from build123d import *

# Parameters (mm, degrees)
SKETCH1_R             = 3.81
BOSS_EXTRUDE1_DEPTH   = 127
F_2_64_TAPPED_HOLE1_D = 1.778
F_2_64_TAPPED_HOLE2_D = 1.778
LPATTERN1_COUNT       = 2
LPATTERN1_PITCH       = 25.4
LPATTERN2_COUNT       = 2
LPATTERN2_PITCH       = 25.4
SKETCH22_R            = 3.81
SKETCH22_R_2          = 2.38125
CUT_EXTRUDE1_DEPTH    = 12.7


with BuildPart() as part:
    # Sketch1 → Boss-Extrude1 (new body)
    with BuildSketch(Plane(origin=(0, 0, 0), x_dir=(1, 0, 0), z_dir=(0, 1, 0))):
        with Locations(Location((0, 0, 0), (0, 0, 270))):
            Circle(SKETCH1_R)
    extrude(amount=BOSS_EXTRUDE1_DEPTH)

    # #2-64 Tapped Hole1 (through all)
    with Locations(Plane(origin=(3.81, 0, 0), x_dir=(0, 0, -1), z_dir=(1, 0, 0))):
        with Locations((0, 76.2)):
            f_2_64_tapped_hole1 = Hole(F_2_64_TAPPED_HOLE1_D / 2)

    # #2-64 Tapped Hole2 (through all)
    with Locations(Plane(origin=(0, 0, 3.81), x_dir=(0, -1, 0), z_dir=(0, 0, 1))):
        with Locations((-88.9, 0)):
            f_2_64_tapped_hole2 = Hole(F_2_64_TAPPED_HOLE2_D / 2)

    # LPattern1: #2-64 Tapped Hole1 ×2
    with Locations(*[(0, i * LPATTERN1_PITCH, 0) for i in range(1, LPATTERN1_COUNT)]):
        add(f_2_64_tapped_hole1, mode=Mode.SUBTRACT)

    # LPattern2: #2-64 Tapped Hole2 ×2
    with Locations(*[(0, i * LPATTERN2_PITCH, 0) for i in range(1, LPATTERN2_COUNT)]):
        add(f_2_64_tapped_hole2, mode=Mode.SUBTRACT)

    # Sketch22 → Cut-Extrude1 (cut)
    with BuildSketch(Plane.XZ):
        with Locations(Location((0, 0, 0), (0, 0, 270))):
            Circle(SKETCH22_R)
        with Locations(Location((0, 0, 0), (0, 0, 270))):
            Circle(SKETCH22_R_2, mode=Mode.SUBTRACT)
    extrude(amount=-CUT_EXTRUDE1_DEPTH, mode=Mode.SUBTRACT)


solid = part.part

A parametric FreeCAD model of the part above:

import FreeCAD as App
import Part
import Sketcher
from FreeCAD import Vector
Q = App.Units.Quantity

doc = App.newDocument("Part")
body = doc.addObject("PartDesign::Body", "Body")

# Sketch on XZ plane
sketch1 = body.newObject("Sketcher::SketchObject", "Sketch")
sketch1.AttachmentSupport = (doc.getObject("XZ_Plane"), [""])
sketch1.MapMode = "FlatFace"
sketch1.addGeometry(Part.Circle(Vector(0, 0, 0), Vector(0, 0, 1), 3.81), False)
sketch1.addConstraint([
    Sketcher.Constraint("Coincident", 0, 3, -1, 1),
    Sketcher.Constraint("Diameter", 0, Q("0.3 in")),
])
pad1 = body.newObject("PartDesign::Pad", "Pad")
pad1.Profile = sketch1
pad1.Length = Q("5 in")
pad1.Reversed = True

# Sketch on YZ plane
sketch2 = body.newObject("Sketcher::SketchObject", "Sketch001")
sketch2.AttachmentSupport = (doc.getObject("YZ_Plane"), [""])
sketch2.MapMode = "FlatFace"
sketch2.AttachmentOffset = App.Placement(Vector(0, 0, 0.15 * 25.4), App.Rotation())
sketch2.addGeometry(Part.Circle(Vector(76.2, 0, 0), Vector(0, 0, 1), 0.889), False)
sketch2.addConstraint([
    Sketcher.Constraint("PointOnObject", 0, 3, -1),
    Sketcher.Constraint("Diameter", 0, Q("0.07 in")),
    Sketcher.Constraint("DistanceX", -1, 1, 0, 3, Q("3 in")),
])
doc.recompute()
hole = body.newObject("PartDesign::Hole", "Hole")
hole.Profile = sketch2
hole.ThreadType = "None"
hole.Diameter = Q("0.07 in")
hole.DepthType = "ThroughAll"

# Sketch on XY plane
sketch3 = body.newObject("Sketcher::SketchObject", "Sketch002")
sketch3.AttachmentSupport = (doc.getObject("XY_Plane"), [""])
sketch3.MapMode = "FlatFace"
sketch3.AttachmentOffset = App.Placement(Vector(0, 0, 0.15 * 25.4), App.Rotation())
sketch3.addGeometry(Part.Circle(Vector(0, 88.9, 0), Vector(0, 0, 1), 0.889), False)
sketch3.addConstraint([
    Sketcher.Constraint("PointOnObject", 0, 3, -2),
    Sketcher.Constraint("Diameter", 0, Q("0.07 in")),
    Sketcher.Constraint("DistanceY", -1, 1, 0, 3, Q("3.5 in")),
])
doc.recompute()
hole2 = body.newObject("PartDesign::Hole", "Hole001")
hole2.Profile = sketch3
hole2.ThreadType = "None"
hole2.Diameter = Q("0.07 in")
hole2.DepthType = "ThroughAll"
doc.recompute()

linearpattern = body.newObject("PartDesign::LinearPattern", "LinearPattern")
linearpattern.Originals = [hole]
linearpattern.Direction = (doc.getObject("Y_Axis"), [""])
linearpattern.Mode = "offset"
linearpattern.Offset = Q("1 in")
linearpattern.Occurrences = 2
body.Tip = linearpattern
doc.recompute()

linearpattern2 = body.newObject("PartDesign::LinearPattern", "LinearPattern001")
linearpattern2.Originals = [hole2]
linearpattern2.Direction = (doc.getObject("Y_Axis"), [""])
linearpattern2.Mode = "offset"
linearpattern2.Offset = Q("1 in")
linearpattern2.Occurrences = 2
body.Tip = linearpattern2

# Sketch on XZ plane
sketch4 = body.newObject("Sketcher::SketchObject", "Sketch003")
sketch4.AttachmentSupport = (doc.getObject("XZ_Plane"), [""])
sketch4.MapMode = "FlatFace"
sketch4.addGeometry([
    Part.Circle(Vector(0, 0, 0), Vector(0, 0, 1), 3.81),
    Part.Circle(Vector(0, 0, 0), Vector(0, 0, 1), 2.38125),
], False)
sketch4.addConstraint([
    Sketcher.Constraint("Coincident", 0, 3, -1, 1),
    Sketcher.Constraint("Coincident", 1, 3, -1, 1),
    Sketcher.Constraint("Diameter", 0, Q("0.3 in")),
    Sketcher.Constraint("Diameter", 1, Q("0.1875 in")),
])
pocket1 = body.newObject("PartDesign::Pocket", "Pocket")
pocket1.Profile = sketch4
pocket1.Length = Q("0.5 in")

doc.recompute()
